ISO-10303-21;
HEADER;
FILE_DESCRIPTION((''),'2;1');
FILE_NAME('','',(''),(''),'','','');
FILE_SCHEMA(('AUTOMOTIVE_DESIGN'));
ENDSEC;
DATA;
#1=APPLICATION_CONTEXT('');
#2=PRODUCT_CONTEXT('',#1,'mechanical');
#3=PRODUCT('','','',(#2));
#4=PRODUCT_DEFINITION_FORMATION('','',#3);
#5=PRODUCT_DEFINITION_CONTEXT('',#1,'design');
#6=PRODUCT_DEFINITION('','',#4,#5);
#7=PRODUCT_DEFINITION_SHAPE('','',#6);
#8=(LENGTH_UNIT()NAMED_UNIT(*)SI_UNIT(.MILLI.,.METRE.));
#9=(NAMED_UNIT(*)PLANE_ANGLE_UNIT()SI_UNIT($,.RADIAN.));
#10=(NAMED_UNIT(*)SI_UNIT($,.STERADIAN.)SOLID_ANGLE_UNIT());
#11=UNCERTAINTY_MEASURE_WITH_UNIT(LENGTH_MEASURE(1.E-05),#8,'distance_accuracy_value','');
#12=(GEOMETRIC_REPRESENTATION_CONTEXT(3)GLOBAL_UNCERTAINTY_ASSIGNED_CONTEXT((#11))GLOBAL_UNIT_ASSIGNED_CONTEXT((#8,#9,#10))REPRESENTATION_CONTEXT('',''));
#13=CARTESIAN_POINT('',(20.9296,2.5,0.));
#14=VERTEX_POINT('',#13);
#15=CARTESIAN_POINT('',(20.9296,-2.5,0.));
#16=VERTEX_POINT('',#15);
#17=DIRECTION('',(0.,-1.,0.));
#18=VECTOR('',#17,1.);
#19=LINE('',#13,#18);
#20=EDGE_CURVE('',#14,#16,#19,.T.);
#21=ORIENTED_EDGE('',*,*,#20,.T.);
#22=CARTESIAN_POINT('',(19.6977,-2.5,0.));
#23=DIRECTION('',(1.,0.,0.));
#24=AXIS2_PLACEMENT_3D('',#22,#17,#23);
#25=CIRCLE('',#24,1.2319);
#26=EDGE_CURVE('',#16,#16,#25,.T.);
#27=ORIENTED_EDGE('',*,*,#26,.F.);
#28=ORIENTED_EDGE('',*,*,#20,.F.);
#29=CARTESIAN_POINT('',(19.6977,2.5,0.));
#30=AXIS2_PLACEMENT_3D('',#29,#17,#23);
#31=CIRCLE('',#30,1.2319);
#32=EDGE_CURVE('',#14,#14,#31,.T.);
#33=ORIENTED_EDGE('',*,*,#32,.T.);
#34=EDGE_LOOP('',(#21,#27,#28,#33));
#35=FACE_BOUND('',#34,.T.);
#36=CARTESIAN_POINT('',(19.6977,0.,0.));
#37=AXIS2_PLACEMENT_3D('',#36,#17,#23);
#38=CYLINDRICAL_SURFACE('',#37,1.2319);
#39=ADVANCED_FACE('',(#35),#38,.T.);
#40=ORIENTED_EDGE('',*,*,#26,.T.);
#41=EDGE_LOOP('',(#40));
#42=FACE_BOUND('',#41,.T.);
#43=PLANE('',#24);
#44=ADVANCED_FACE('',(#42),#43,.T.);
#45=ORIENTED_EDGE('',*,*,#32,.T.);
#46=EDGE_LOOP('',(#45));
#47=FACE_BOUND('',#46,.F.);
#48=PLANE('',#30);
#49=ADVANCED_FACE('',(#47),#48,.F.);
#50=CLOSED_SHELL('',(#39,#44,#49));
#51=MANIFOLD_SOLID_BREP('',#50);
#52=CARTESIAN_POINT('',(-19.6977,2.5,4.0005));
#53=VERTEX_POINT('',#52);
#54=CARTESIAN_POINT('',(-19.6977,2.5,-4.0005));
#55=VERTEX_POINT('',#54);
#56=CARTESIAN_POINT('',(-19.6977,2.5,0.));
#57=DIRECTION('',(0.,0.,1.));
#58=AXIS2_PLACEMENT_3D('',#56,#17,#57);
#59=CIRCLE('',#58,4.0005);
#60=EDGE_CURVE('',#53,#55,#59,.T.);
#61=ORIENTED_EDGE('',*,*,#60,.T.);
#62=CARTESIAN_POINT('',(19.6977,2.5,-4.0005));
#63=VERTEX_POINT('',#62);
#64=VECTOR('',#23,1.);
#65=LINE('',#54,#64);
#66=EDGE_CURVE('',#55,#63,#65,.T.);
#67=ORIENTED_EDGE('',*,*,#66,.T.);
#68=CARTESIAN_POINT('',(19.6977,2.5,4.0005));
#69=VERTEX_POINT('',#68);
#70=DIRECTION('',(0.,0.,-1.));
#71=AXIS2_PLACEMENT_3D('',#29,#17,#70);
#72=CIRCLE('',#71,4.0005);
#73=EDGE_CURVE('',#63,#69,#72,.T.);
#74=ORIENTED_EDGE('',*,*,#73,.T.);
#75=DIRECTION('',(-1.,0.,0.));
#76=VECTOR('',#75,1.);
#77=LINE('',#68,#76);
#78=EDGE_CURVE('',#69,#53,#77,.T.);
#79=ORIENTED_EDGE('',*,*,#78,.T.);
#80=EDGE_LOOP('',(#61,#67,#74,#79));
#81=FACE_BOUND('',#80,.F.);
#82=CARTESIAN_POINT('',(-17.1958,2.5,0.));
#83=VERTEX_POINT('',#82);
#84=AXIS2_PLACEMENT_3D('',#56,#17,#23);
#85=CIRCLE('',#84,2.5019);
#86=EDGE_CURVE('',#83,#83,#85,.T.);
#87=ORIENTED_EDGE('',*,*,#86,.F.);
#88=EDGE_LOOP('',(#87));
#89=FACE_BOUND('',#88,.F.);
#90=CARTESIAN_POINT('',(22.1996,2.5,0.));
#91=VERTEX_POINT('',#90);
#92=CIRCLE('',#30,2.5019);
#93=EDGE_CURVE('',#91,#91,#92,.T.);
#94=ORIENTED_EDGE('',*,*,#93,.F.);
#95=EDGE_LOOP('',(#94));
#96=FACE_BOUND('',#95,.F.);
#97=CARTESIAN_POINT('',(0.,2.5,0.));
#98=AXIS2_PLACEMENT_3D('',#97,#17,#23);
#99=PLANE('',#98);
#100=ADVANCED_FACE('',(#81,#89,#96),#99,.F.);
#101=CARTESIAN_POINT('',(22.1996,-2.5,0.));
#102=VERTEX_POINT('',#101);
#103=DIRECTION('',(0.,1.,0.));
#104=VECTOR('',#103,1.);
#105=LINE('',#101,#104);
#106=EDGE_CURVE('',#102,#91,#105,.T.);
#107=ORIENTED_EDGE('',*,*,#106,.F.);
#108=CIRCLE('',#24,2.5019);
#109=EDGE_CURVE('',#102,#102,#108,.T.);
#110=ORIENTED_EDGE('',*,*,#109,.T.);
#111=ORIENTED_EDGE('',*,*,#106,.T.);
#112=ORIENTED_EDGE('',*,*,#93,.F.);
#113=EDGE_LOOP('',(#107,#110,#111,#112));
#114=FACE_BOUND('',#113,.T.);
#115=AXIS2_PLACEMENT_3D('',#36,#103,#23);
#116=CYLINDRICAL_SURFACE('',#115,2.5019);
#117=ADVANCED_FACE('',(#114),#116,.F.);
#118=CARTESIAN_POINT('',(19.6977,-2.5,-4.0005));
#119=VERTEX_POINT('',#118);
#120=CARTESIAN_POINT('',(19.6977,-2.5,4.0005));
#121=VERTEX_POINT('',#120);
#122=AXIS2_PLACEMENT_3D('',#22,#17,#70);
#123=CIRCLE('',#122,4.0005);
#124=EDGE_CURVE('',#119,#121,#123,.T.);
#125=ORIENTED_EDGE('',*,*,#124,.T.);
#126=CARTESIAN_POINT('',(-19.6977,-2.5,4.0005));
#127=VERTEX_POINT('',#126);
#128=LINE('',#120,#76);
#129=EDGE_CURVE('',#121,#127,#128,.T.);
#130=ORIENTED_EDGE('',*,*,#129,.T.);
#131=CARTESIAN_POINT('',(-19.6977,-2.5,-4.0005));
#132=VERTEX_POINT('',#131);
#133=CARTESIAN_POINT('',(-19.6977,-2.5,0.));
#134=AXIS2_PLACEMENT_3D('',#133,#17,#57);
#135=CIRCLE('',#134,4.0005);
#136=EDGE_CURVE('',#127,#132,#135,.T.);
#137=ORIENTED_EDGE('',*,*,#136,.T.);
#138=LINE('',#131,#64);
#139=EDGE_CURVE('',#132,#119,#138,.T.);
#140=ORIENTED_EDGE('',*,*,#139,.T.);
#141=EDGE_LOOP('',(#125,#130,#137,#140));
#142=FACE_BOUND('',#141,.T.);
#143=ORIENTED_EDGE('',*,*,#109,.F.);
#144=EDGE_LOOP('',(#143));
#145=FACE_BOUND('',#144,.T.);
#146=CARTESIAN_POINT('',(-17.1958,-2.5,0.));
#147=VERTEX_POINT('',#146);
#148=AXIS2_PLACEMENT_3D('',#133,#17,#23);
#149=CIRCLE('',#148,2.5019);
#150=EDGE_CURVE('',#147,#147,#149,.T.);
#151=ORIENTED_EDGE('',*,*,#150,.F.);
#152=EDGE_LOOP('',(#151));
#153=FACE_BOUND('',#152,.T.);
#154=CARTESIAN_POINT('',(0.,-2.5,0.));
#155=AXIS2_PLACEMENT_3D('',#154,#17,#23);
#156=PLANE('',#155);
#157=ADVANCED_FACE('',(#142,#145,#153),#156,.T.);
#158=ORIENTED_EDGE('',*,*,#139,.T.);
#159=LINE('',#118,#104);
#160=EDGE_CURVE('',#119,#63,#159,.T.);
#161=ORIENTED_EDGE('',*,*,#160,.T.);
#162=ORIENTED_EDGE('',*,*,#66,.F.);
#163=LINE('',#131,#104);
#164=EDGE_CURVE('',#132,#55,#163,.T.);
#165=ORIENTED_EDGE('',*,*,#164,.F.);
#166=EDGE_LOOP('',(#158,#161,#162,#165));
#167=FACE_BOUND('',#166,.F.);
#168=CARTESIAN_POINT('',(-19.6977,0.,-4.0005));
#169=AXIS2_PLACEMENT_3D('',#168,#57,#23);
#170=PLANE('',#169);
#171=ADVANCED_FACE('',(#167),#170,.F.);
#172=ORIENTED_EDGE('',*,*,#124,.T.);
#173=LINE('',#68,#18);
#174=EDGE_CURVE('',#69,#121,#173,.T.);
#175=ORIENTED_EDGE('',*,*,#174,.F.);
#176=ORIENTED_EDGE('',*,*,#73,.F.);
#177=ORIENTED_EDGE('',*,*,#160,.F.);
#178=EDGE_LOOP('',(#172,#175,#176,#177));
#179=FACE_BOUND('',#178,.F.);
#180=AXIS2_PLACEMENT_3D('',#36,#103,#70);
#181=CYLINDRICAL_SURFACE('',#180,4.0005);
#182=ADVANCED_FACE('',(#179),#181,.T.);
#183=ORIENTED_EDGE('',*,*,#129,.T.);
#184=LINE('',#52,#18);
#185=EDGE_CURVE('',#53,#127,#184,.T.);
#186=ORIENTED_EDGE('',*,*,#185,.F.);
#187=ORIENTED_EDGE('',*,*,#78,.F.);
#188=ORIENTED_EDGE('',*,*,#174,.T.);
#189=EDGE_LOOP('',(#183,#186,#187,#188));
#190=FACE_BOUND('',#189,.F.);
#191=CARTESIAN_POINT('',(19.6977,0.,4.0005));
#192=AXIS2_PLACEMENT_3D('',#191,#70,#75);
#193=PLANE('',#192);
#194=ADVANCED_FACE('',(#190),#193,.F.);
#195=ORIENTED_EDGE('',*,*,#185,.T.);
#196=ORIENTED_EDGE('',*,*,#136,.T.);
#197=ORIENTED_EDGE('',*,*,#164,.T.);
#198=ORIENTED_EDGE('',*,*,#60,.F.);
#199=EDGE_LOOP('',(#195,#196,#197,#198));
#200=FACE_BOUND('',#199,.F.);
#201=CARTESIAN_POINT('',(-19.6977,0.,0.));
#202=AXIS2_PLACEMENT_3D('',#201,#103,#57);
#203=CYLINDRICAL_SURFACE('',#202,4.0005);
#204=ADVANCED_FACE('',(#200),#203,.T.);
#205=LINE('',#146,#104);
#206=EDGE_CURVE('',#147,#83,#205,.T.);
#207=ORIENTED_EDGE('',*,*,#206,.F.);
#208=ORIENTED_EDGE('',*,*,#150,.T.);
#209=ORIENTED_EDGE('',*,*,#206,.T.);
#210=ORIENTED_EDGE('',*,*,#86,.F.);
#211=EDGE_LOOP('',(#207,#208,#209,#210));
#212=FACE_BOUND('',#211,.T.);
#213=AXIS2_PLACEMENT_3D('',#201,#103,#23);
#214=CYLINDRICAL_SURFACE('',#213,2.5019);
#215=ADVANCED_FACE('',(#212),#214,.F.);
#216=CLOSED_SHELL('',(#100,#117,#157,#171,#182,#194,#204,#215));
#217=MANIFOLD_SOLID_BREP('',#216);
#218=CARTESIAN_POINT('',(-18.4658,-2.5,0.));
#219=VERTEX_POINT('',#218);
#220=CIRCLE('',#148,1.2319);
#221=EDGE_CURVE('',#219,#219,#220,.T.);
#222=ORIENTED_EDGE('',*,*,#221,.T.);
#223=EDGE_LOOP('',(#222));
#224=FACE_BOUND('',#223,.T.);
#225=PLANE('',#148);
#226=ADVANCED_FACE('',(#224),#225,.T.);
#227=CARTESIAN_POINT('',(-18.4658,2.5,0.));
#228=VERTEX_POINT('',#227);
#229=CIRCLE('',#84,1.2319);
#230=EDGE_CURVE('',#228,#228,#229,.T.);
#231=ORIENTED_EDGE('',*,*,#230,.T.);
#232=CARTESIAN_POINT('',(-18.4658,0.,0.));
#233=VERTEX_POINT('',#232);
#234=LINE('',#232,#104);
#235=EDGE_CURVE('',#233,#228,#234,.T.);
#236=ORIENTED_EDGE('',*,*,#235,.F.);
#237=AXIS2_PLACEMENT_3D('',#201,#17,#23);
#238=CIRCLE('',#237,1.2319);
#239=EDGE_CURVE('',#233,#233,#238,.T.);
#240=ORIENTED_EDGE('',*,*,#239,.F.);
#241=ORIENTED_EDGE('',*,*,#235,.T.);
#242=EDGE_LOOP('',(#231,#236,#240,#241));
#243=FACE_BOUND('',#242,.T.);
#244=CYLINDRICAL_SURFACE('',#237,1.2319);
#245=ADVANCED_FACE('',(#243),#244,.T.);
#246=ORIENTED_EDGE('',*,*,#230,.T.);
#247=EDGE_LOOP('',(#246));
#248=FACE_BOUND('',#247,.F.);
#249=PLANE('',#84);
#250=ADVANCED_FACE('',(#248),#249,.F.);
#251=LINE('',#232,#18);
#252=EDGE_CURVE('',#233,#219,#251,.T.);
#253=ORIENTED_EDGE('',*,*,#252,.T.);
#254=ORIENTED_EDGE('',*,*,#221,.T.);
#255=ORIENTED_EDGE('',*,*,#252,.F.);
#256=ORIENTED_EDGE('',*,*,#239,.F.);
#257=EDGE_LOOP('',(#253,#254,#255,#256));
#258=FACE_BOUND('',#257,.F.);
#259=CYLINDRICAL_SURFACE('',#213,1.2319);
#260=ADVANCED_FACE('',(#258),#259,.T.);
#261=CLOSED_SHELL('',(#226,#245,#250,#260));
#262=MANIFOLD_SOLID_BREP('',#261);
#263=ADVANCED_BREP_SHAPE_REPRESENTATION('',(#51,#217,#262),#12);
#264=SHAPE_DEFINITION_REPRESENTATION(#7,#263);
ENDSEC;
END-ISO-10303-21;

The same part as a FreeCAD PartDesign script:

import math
import FreeCAD as App
import Part
import Sketcher
Q = App.Units.Quantity

doc = App.newDocument("Part")
params = doc.addObject("Spreadsheet::Sheet", "Params")
for row, (alias, value) in enumerate([
    ("sketch1_diameter", "0.197 in"),
    ("sketch1_diameter2", "0.097 in"),
    ("sketch1_width", "1.551 in"),
    ("pad1_length", "5 mm"),
], start=1):
    params.set(f"A{row}", alias)
    params.set(f"B{row}", "=" + value)
    params.setAlias(f"B{row}", alias)

body = doc.addObject("PartDesign::Body", "Body")
body.AllowCompound = True

sketch1 = body.newObject("Sketcher::SketchObject", "Sketch")
sketch1.AttachmentSupport = (doc.getObject("XZ_Plane"), [""])
sketch1.MapMode = "FlatFace"
sketch1.addGeometry([
    Part.ArcOfCircle(Part.Circle(App.Vector(19.6977, 0, 0), App.Vector(0, 0, 1), 4.0005), math.radians(-90), math.radians(90)),
    Part.LineSegment(App.Vector(19.6977, 4.0005, 0), App.Vector(-19.6977, 4.0005, 0)),
    Part.ArcOfCircle(Part.Circle(App.Vector(-19.6977, 0, 0), App.Vector(0, 0, 1), 4.0005), math.radians(90), math.radians(270)),
    Part.LineSegment(App.Vector(-19.6977, -4.0005, 0), App.Vector(19.6977, -4.0005, 0)),
    Part.Circle(App.Vector(-19.6977, 0, 0), App.Vector(0, 0, 1), 2.5019),
    Part.Circle(App.Vector(19.6977, 0, 0), App.Vector(0, 0, 1), 2.5019),
    Part.Circle(App.Vector(-19.6977, 0, 0), App.Vector(0, 0, 1), 1.2319),
    Part.Circle(App.Vector(19.6977, 0, 0), App.Vector(0, 0, 1), 1.2319),
], False)
sketch1.addConstraint([
    Sketcher.Constraint("Tangent", 0, 2, 1, 1),
    Sketcher.Constraint("Tangent", 1, 2, 2, 1),
    Sketcher.Constraint("Tangent", 2, 2, 3, 1),
    Sketcher.Constraint("Tangent", 3, 2, 0, 1),
    Sketcher.Constraint("Horizontal", 1),
    Sketcher.Constraint("Horizontal", 3),
    Sketcher.Constraint("Coincident", 4, 3, 2, 3),
    Sketcher.Constraint("Coincident", 5, 3, 0, 3),
    Sketcher.Constraint("Coincident", 6, 3, 2, 3),
    Sketcher.Constraint("Coincident", 7, 3, 0, 3),
    Sketcher.Constraint("Equal", 4, 5),
    Sketcher.Constraint("Equal", 6, 7),
    Sketcher.Constraint("Symmetric", 0, 3, 2, 3, -1, 1),
    Sketcher.Constraint("Diameter", 4, Q("0.197 in")),
    Sketcher.Constraint("Diameter", 6, Q("0.097 in")),
    Sketcher.Constraint("Radius", 0, Q("0.1575 in")),
    Sketcher.Constraint("DistanceX", 1, 2, 1, 1, Q("1.551 in")),
])
sketch1.setExpression("Constraints[13]", "Params.sketch1_diameter")
sketch1.setExpression("Constraints[14]", "Params.sketch1_diameter2")
sketch1.setExpression("Constraints[16]", "Params.sketch1_width")
pad1 = body.newObject("PartDesign::Pad", "Pad")
pad1.Profile = sketch1
pad1.setExpression("Length", "Params.pad1_length")
pad1.Midplane = True

doc.recompute()
